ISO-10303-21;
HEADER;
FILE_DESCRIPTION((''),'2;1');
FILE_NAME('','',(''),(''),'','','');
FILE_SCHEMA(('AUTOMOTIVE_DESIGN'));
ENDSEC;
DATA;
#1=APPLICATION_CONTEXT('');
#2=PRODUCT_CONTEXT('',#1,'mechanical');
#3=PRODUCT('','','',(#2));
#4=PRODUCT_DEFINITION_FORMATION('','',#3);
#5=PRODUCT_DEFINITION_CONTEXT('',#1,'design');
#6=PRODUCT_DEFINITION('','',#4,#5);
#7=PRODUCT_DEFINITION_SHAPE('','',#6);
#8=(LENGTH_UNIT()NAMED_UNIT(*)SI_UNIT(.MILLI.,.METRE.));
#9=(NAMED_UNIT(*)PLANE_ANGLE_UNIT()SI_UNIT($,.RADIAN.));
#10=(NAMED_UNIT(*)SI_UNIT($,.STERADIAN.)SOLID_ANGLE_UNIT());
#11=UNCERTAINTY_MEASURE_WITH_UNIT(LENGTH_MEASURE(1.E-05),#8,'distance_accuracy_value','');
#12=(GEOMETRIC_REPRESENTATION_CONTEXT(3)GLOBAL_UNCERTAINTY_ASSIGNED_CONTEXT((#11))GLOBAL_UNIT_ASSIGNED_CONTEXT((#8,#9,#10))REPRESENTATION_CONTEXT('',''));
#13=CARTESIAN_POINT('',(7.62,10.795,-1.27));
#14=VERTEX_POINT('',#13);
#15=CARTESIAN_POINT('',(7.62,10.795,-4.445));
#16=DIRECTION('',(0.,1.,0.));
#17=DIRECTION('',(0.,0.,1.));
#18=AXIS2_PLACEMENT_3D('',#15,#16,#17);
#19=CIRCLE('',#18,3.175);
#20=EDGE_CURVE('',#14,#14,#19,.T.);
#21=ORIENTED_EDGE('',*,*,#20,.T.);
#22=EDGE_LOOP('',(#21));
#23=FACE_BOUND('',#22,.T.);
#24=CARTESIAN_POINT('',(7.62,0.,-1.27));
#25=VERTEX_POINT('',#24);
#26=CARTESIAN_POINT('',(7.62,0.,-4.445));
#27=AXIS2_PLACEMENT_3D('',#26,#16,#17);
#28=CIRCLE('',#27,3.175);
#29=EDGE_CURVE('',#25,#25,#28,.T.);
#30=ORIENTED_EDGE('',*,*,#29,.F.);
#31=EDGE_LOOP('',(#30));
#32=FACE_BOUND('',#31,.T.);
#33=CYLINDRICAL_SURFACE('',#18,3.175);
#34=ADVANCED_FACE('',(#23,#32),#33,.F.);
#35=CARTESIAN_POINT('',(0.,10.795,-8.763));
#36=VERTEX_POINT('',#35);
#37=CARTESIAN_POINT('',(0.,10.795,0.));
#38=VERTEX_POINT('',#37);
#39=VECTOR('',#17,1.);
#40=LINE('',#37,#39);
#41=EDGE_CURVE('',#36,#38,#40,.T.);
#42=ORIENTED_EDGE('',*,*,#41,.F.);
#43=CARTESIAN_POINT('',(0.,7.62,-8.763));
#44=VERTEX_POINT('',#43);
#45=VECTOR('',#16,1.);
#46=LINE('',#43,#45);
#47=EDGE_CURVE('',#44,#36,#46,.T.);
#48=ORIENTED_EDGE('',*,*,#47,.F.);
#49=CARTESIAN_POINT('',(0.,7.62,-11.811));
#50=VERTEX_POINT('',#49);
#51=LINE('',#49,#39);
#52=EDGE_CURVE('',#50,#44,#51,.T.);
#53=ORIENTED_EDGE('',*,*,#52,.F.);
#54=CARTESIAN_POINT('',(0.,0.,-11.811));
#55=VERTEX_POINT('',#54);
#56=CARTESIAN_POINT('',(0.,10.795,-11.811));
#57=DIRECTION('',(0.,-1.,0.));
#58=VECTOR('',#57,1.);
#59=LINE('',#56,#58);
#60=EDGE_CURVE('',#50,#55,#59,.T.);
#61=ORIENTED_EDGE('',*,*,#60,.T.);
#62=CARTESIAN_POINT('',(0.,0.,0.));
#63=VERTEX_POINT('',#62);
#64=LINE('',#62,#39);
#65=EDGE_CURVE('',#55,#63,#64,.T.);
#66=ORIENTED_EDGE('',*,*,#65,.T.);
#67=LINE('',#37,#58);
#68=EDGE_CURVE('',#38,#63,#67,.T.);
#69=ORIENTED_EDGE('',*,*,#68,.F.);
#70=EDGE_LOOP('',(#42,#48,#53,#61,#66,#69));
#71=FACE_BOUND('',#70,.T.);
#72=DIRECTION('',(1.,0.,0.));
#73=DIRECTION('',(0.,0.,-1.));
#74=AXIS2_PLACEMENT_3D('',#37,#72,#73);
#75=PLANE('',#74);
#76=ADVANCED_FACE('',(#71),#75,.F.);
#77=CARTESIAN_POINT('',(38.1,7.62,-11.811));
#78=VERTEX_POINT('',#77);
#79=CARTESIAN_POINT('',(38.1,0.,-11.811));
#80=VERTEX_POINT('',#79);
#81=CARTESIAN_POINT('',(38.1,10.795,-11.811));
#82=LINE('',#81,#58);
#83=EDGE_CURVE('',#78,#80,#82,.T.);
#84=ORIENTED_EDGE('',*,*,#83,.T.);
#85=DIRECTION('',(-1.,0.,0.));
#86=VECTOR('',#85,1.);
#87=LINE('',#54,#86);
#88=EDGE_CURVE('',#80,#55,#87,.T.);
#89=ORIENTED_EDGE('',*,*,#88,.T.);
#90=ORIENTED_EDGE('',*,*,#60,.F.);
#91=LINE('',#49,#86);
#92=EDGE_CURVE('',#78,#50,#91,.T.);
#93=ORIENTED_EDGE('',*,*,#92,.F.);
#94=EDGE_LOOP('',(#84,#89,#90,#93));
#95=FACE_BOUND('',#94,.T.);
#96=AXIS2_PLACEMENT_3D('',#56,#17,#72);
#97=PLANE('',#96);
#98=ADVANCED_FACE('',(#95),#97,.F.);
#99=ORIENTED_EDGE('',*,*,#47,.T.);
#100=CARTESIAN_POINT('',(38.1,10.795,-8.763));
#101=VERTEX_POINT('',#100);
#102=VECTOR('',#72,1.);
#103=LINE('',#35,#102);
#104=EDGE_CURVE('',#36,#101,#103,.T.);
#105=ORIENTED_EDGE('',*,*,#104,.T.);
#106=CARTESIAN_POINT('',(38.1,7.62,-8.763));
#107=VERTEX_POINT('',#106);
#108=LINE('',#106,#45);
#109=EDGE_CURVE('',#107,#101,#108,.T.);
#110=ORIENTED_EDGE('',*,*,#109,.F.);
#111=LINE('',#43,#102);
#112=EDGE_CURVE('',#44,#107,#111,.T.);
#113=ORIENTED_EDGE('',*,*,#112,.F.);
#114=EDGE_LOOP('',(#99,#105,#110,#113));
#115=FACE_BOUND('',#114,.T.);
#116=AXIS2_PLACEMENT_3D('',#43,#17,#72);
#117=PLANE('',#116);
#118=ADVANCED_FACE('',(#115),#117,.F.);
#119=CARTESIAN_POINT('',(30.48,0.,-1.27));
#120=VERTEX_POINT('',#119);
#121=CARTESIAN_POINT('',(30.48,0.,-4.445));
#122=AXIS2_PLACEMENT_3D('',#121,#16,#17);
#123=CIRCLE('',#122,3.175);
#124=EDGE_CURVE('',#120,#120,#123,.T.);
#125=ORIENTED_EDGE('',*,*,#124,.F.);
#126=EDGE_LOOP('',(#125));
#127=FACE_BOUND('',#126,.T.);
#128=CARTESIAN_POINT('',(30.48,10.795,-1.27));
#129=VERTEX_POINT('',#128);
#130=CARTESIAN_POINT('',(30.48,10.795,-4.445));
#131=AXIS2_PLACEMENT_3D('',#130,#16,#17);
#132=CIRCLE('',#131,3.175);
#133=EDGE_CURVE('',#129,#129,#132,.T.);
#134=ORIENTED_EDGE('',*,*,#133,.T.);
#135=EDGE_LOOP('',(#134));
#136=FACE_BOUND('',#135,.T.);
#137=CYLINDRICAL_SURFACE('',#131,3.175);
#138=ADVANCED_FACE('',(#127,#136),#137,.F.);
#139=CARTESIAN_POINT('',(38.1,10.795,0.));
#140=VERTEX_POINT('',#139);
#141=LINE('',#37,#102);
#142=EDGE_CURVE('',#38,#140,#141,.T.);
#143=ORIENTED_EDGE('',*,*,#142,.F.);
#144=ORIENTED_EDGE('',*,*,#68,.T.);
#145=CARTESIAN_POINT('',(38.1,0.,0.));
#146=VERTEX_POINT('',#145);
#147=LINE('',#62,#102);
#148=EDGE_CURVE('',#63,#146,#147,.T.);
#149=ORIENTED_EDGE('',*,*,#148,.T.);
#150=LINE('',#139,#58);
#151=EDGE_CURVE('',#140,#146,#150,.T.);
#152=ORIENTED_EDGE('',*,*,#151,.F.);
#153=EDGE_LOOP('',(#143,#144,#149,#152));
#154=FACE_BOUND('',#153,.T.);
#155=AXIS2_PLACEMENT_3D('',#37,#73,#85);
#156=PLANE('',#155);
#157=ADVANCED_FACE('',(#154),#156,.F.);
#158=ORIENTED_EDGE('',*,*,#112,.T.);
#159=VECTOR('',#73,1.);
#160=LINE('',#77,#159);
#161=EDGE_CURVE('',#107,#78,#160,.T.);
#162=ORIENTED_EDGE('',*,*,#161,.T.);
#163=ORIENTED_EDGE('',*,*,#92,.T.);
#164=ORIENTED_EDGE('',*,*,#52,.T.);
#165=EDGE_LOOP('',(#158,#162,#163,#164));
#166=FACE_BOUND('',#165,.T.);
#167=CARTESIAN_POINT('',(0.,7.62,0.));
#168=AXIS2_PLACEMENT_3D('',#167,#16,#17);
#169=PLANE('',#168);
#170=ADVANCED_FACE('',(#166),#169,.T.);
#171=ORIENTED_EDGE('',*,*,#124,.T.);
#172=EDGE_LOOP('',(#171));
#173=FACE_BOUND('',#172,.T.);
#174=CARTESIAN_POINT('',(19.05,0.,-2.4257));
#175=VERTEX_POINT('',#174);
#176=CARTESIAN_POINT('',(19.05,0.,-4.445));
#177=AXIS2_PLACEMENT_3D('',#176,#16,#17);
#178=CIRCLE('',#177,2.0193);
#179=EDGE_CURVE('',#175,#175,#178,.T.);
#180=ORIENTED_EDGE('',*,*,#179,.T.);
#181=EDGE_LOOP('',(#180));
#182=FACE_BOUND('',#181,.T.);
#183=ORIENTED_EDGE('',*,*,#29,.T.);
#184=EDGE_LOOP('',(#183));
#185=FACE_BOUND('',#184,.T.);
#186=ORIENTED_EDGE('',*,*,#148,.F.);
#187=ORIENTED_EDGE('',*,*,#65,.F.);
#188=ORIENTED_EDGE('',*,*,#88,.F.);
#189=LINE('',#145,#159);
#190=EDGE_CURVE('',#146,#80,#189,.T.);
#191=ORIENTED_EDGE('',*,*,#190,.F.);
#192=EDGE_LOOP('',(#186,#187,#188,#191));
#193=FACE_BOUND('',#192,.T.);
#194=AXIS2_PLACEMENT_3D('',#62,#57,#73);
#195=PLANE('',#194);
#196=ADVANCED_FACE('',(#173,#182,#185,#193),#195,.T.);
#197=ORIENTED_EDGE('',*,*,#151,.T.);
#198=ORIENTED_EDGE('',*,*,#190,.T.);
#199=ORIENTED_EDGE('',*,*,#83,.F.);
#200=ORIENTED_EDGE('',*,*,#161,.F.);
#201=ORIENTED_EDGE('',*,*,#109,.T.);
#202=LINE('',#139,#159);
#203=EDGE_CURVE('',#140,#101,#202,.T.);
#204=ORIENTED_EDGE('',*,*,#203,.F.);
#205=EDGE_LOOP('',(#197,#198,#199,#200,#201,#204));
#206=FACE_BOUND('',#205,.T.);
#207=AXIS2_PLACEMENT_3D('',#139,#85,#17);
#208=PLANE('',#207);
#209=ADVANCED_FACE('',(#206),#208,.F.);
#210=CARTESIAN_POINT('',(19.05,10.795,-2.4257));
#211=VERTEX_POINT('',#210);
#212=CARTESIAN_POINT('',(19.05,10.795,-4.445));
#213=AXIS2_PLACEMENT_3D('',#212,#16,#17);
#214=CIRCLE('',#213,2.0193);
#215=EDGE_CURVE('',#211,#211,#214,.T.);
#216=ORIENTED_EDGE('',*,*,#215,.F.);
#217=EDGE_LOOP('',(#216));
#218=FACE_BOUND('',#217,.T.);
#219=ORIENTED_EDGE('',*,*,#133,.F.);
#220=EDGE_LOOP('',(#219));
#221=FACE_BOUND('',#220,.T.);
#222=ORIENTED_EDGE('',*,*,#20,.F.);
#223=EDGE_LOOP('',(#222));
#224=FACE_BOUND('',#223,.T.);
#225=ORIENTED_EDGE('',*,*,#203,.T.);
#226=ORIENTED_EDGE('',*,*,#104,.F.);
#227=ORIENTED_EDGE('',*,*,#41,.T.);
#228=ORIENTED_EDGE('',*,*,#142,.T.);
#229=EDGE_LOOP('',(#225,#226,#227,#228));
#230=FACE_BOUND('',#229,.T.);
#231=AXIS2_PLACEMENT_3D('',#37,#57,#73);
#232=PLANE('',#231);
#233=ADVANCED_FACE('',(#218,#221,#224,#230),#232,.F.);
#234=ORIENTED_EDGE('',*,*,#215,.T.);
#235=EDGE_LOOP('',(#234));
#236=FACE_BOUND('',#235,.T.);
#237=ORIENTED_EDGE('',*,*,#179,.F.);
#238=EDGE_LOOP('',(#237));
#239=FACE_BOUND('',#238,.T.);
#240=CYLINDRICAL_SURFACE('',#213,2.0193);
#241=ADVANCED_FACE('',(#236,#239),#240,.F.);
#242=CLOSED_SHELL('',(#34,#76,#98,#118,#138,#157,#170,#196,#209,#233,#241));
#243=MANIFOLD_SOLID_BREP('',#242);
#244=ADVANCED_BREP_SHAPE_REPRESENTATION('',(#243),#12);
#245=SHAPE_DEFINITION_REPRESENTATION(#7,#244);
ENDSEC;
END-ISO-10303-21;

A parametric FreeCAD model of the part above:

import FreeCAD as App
import Part
import Sketcher
Q = App.Units.Quantity

doc = App.newDocument("Part")
body = doc.addObject("PartDesign::Body", "Body")

sketch1 = doc.addObject("Sketcher::SketchObject", "Sketch")
body.addObject(sketch1)
sketch1.AttachmentSupport = (doc.XZ_Plane, [""])
sketch1.MapMode = "FlatFace"
sketch1.addGeometry([
    Part.LineSegment(App.Vector(0, -12, 0), App.Vector(0, 0, 0)),
    Part.LineSegment(App.Vector(0, 0, 0), App.Vector(38, 0, 0)),
    Part.LineSegment(App.Vector(38, 0, 0), App.Vector(38, -12, 0)),
    Part.LineSegment(App.Vector(38, -12, 0), App.Vector(0, -12, 0)),
], False)
sketch1.addConstraint([
    Sketcher.Constraint("Coincident", 0, 2, 1, 1),
    Sketcher.Constraint("Coincident", 1, 2, 2, 1),
    Sketcher.Constraint("Coincident", 2, 2, 3, 1),
    Sketcher.Constraint("Coincident", 3, 2, 0, 1),
    Sketcher.Constraint("Vertical", 0),
    Sketcher.Constraint("Horizontal", 1),
    Sketcher.Constraint("Vertical", 2),
    Sketcher.Constraint("Horizontal", 3),
    Sketcher.Constraint("Coincident", 0, 2, -1, 1),
    Sketcher.Constraint("DistanceX", 1, 1, 1, 2, Q("1.5 in")),
    Sketcher.Constraint("DistanceY", 0, 1, 0, 2, Q("0.465 in")),
])
pad1 = doc.addObject("PartDesign::Pad", "Pad")
body.addObject(pad1)
pad1.Profile = sketch1
pad1.Length = Q("0.425 in")
pad1.Reversed = True

sketch2 = doc.addObject("Sketcher::SketchObject", "Sketch001")
body.addObject(sketch2)
sketch2.AttachmentSupport = (doc.XZ_Plane, [""])
sketch2.MapMode = "FlatFace"
sketch2.AttachmentOffset = App.Placement(App.Vector(0, 0, -0.425 * 25.4), App.Rotation())
sketch2.addGeometry([
    Part.LineSegment(App.Vector(0, -11.8, 0), App.Vector(0, -8.8, 0)),
    Part.LineSegment(App.Vector(0, -8.8, 0), App.Vector(38.1, -8.8, 0)),
    Part.LineSegment(App.Vector(38.1, -8.8, 0), App.Vector(38.1, -11.8, 0)),
    Part.LineSegment(App.Vector(38.1, -11.8, 0), App.Vector(0, -11.8, 0)),
], False)
sketch2.addConstraint([
    Sketcher.Constraint("Coincident", 0, 2, 1, 1),
    Sketcher.Constraint("Coincident", 1, 2, 2, 1),
    Sketcher.Constraint("Coincident", 2, 2, 3, 1),
    Sketcher.Constraint("Coincident", 3, 2, 0, 1),
    Sketcher.Constraint("Vertical", 0),
    Sketcher.Constraint("Horizontal", 1),
    Sketcher.Constraint("Vertical", 2),
    Sketcher.Constraint("Horizontal", 3),
    Sketcher.Constraint("PointOnObject", 0, 2, -2),
    Sketcher.Constraint("DistanceX", 1, 1, 1, 2, Q("1.5 in")),
    Sketcher.Constraint("DistanceY", 0, 1, 0, 2, Q("0.12 in")),
    Sketcher.Constraint("DistanceY", 0, 2, -1, 1, Q("0.345 in")),
])
pocket1 = doc.addObject("PartDesign::Pocket", "Pocket")
body.addObject(pocket1)
pocket1.Profile = sketch2
pocket1.Length = Q("0.125 in")
pocket1.Reversed = True

sketch3 = doc.addObject("Sketcher::SketchObject", "Sketch002")
body.addObject(sketch3)
sketch3.AttachmentSupport = (doc.XZ_Plane, [""])
sketch3.MapMode = "FlatFace"
sketch3.AttachmentOffset = App.Placement(App.Vector(0, 0, -0.425 * 25.4), App.Rotation())
sketch3.addGeometry([
    Part.Circle(App.Vector(7.6, -4.4, 0), App.Vector(0, 0, 1), 3.2),
    Part.Circle(App.Vector(30.5, -4.4, 0), App.Vector(0, 0, 1), 3.2),
], False)
sketch3.addConstraint([
    Sketcher.Constraint("Equal", 0, 1),
    Sketcher.Constraint("Horizontal", 0, 3, 1, 3),
    Sketcher.Constraint("Diameter", 0, Q("0.25 in")),
    Sketcher.Constraint("DistanceX", -1, 1, 0, 3, Q("0.3 in")),
    Sketcher.Constraint("DistanceX", -1, 1, 1, 3, Q("1.2 in")),
    Sketcher.Constraint("DistanceY", 0, 3, -1, 1, Q("0.175 in")),
])
doc.recompute()
hole = doc.addObject("PartDesign::Hole", "Hole")
body.addObject(hole)
hole.Profile = sketch3
hole.ThreadType = "None"
hole.Diameter = Q("0.25 in")
hole.DepthType = "ThroughAll"
hole.Reversed = True

sketch4 = doc.addObject("Sketcher::SketchObject", "Sketch003")
body.addObject(sketch4)
sketch4.AttachmentSupport = (doc.XZ_Plane, [""])
sketch4.MapMode = "FlatFace"
sketch4.AttachmentOffset = App.Placement(App.Vector(0, 0, -0.425 * 25.4), App.Rotation())
sketch4.addGeometry(Part.Circle(App.Vector(19.1, -4.4, 0), App.Vector(0, 0, 1), 2), False)
sketch4.addConstraint([
    Sketcher.Constraint("Diameter", 0, Q("0.159 in")),
    Sketcher.Constraint("DistanceX", -1, 1, 0, 3, Q("0.75 in")),
    Sketcher.Constraint("DistanceY", 0, 3, -1, 1, Q("0.175 in")),
])
doc.recompute()
hole2 = doc.addObject("PartDesign::Hole", "Hole001")
body.addObject(hole2)
hole2.Profile = sketch4
hole2.ThreadType = "None"
hole2.Diameter = Q("0.159 in")
hole2.DepthType = "ThroughAll"
hole2.Reversed = True

doc.recompute()
